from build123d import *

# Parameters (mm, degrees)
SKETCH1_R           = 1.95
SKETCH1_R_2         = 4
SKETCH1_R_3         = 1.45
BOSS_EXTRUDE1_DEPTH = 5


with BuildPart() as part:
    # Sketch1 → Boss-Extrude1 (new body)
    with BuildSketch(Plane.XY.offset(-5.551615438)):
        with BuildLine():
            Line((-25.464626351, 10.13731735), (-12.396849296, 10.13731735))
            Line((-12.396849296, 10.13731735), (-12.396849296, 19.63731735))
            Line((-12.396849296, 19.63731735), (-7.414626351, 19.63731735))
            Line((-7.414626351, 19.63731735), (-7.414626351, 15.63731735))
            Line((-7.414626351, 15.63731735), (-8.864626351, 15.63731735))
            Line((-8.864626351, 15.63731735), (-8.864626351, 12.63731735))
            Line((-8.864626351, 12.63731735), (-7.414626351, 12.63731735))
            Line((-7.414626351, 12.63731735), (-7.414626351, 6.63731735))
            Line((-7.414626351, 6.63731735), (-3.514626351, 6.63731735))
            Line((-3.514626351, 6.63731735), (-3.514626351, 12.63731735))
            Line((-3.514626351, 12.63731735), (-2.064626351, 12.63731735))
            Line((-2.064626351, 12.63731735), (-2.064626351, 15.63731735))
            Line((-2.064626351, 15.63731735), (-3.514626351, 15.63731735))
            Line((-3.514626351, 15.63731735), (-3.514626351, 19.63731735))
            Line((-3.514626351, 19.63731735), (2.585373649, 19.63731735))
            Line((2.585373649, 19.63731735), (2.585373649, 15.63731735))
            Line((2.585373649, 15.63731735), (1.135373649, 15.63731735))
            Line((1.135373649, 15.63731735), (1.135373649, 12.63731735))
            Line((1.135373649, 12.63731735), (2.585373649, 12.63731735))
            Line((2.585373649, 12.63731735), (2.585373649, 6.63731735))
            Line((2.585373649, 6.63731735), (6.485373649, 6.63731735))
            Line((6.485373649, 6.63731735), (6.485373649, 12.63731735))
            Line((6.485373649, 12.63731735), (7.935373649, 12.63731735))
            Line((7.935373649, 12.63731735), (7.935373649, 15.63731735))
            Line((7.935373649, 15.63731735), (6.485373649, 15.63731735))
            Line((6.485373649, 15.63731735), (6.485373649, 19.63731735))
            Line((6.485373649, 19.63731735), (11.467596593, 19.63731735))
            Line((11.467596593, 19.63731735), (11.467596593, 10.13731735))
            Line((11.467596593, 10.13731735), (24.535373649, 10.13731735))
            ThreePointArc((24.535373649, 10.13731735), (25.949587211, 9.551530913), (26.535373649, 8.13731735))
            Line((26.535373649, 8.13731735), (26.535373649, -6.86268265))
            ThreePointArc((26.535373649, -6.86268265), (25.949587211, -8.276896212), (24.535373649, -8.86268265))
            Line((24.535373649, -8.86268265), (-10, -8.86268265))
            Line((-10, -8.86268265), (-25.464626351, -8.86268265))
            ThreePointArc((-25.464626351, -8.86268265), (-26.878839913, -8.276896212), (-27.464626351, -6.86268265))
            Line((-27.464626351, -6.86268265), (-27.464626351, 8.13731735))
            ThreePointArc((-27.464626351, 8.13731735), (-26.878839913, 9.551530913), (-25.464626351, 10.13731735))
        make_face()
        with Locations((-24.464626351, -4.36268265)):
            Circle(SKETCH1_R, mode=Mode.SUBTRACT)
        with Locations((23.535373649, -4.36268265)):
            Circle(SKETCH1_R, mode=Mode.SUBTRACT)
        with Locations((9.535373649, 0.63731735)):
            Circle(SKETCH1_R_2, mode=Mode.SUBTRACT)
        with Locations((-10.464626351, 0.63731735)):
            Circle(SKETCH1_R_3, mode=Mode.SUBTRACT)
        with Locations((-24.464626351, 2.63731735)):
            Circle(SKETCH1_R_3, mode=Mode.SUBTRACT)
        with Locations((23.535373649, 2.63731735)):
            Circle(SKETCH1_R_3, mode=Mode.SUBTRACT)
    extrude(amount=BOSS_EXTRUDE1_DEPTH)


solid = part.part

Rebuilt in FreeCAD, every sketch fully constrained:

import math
import FreeCAD as App
import Part
import Sketcher

doc = App.newDocument("Part")
body = doc.addObject("PartDesign::Body", "Body")

# Sketch on XY plane
sketch1 = body.newObject("Sketcher::SketchObject", "Sketch")
sketch1.AttachmentSupport = (doc.getObject("XY_Plane"), [""])
sketch1.MapMode = "FlatFace"
sketch1.AttachmentOffset = App.Placement(App.Vector(0, 0, -5.551615), App.Rotation())
sketch1.addGeometry([
    Part.LineSegment(App.Vector(-12.4, 10.1, 0), App.Vector(-25.5, 10.1, 0)),  # 0
    Part.ArcOfCircle(Part.Circle(App.Vector(-25.5, 8.1, 0), App.Vector(0, 0, 1), 2), math.radians(90), math.radians(180)),  # 1
    Part.LineSegment(App.Vector(-27.5, 8.1, 0), App.Vector(-27.5, -6.9, 0)),  # 2
    Part.ArcOfCircle(Part.Circle(App.Vector(-25.5, -6.9, 0), App.Vector(0, 0, 1), 2), math.radians(-180), math.radians(-90)),  # 3
    Part.LineSegment(App.Vector(-25.5, -8.9, 0), App.Vector(24.5, -8.9, 0)),  # 4
    Part.ArcOfCircle(Part.Circle(App.Vector(24.5, -6.9, 0), App.Vector(0, 0, 1), 2), math.radians(-90), math.radians(0)),  # 5
    Part.LineSegment(App.Vector(26.5, -6.9, 0), App.Vector(26.5, 8.1, 0)),  # 6
    Part.ArcOfCircle(Part.Circle(App.Vector(24.5, 8.1, 0), App.Vector(0, 0, 1), 2), math.radians(0), math.radians(90)),  # 7
    Part.LineSegment(App.Vector(24.5, 10.1, 0), App.Vector(11.5, 10.1, 0)),  # 8
    Part.LineSegment(App.Vector(11.5, 10.1, 0), App.Vector(11.5, 19.6, 0)),  # 9
    Part.LineSegment(App.Vector(11.5, 19.6, 0), App.Vector(6.5, 19.6, 0)),  # 10
    Part.LineSegment(App.Vector(6.5, 19.6, 0), App.Vector(6.5, 15.6, 0)),  # 11
    Part.LineSegment(App.Vector(6.5, 15.6, 0), App.Vector(7.9, 15.6, 0)),  # 12
    Part.LineSegment(App.Vector(7.9, 15.6, 0), App.Vector(7.9, 12.6, 0)),  # 13
    Part.LineSegment(App.Vector(7.9, 12.6, 0), App.Vector(6.5, 12.6, 0)),  # 14
    Part.LineSegment(App.Vector(6.5, 12.6, 0), App.Vector(6.5, 6.6, 0)),  # 15
    Part.LineSegment(App.Vector(6.5, 6.6, 0), App.Vector(2.6, 6.6, 0)),  # 16
    Part.LineSegment(App.Vector(2.6, 6.6, 0), App.Vector(2.6, 12.6, 0)),  # 17
    Part.LineSegment(App.Vector(2.6, 12.6, 0), App.Vector(1.1, 12.6, 0)),  # 18
    Part.LineSegment(App.Vector(1.1, 12.6, 0), App.Vector(1.1, 15.6, 0)),  # 19
    Part.LineSegment(App.Vector(1.1, 15.6, 0), App.Vector(2.6, 15.6, 0)),  # 20
    Part.LineSegment(App.Vector(2.6, 15.6, 0), App.Vector(2.6, 19.6, 0)),  # 21
    Part.LineSegment(App.Vector(2.6, 19.6, 0), App.Vector(-3.5, 19.6, 0)),  # 22
    Part.LineSegment(App.Vector(-3.5, 19.6, 0), App.Vector(-3.5, 15.6, 0)),  # 23
    Part.LineSegment(App.Vector(-3.5, 15.6, 0), App.Vector(-2.1, 15.6, 0)),  # 24
    Part.LineSegment(App.Vector(-2.1, 15.6, 0), App.Vector(-2.1, 12.6, 0)),  # 25
    Part.LineSegment(App.Vector(-2.1, 12.6, 0), App.Vector(-3.5, 12.6, 0)),  # 26
    Part.LineSegment(App.Vector(-3.5, 12.6, 0), App.Vector(-3.5, 6.6, 0)),  # 27
    Part.LineSegment(App.Vector(-3.5, 6.6, 0), App.Vector(-7.4, 6.6, 0)),  # 28
    Part.LineSegment(App.Vector(-7.4, 6.6, 0), App.Vector(-7.4, 12.6, 0)),  # 29
    Part.LineSegment(App.Vector(-7.4, 12.6, 0), App.Vector(-8.9, 12.6, 0)),  # 30
    Part.LineSegment(App.Vector(-8.9, 12.6, 0), App.Vector(-8.9, 15.6, 0)),  # 31
    Part.LineSegment(App.Vector(-8.9, 15.6, 0), App.Vector(-7.4, 15.6, 0)),  # 32
    Part.LineSegment(App.Vector(-7.4, 15.6, 0), App.Vector(-7.4, 19.6, 0)),  # 33
    Part.LineSegment(App.Vector(-7.4, 19.6, 0), App.Vector(-12.4, 19.6, 0)),  # 34
    Part.LineSegment(App.Vector(-12.4, 19.6, 0), App.Vector(-12.4, 10.1, 0)),  # 35
    Part.Circle(App.Vector(23.5, -4.4, 0), App.Vector(0, 0, 1), 1.9),  # 36
    Part.Circle(App.Vector(-24.5, -4.4, 0), App.Vector(0, 0, 1), 1.9),  # 37
    Part.Circle(App.Vector(9.5, 0.6, 0), App.Vector(0, 0, 1), 4),  # 38
    Part.Circle(App.Vector(23.5, 2.6, 0), App.Vector(0, 0, 1), 1.4),  # 39
    Part.Circle(App.Vector(-10.5, 0.6, 0), App.Vector(0, 0, 1), 1.4),  # 40
    Part.Circle(App.Vector(-24.5, 2.6, 0), App.Vector(0, 0, 1), 1.4),  # 41
], False)
sketch1.addConstraint([
    Sketcher.Constraint("Tangent", 0, 2, 1, 1),
    Sketcher.Constraint("Tangent", 1, 2, 2, 1),
    Sketcher.Constraint("Tangent", 2, 2, 3, 1),
    Sketcher.Constraint("Tangent", 3, 2, 4, 1),
    Sketcher.Constraint("Tangent", 4, 2, 5, 1),
    Sketcher.Constraint("Tangent", 5, 2, 6, 1),
    Sketcher.Constraint("Tangent", 6, 2, 7, 1),
    Sketcher.Constraint("Tangent", 7, 2, 8, 1),
    Sketcher.Constraint("Coincident", 8, 2, 9, 1),
    Sketcher.Constraint("Coincident", 9, 2, 10, 1),
    Sketcher.Constraint("Coincident", 10, 2, 11, 1),
    Sketcher.Constraint("Coincident", 11, 2, 12, 1),
    Sketcher.Constraint("Coincident", 12, 2, 13, 1),
    Sketcher.Constraint("Coincident", 13, 2, 14, 1),
    Sketcher.Constraint("Coincident", 14, 2, 15, 1),
    Sketcher.Constraint("Coincident", 15, 2, 16, 1),
    Sketcher.Constraint("Coincident", 16, 2, 17, 1),
    Sketcher.Constraint("Coincident", 17, 2, 18, 1),
    Sketcher.Constraint("Coincident", 18, 2, 19, 1),
    Sketcher.Constraint("Coincident", 19, 2, 20, 1),
    Sketcher.Constraint("Coincident", 20, 2, 21, 1),
    Sketcher.Constraint("Coincident", 21, 2, 22, 1),
    Sketcher.Constraint("Coincident", 22, 2, 23, 1),
    Sketcher.Constraint("Coincident", 23, 2, 24, 1),
    Sketcher.Constraint("Coincident", 24, 2, 25, 1),
    Sketcher.Constraint("Coincident", 25, 2, 26, 1),
    Sketcher.Constraint("Coincident", 26, 2, 27, 1),
    Sketcher.Constraint("Coincident", 27, 2, 28, 1),
    Sketcher.Constraint("Coincident", 28, 2, 29, 1),
    Sketcher.Constraint("Coincident", 29, 2, 30, 1),
    Sketcher.Constraint("Coincident", 30, 2, 31, 1),
    Sketcher.Constraint("Coincident", 31, 2, 32, 1),
    Sketcher.Constraint("Coincident", 32, 2, 33, 1),
    Sketcher.Constraint("Coincident", 33, 2, 34, 1),
    Sketcher.Constraint("Coincident", 34, 2, 35, 1),
    Sketcher.Constraint("Coincident", 35, 2, 0, 1),
    Sketcher.Constraint("Horizontal", 0),
    Sketcher.Constraint("Vertical", 2),
    Sketcher.Constraint("Horizontal", 4),
    Sketcher.Constraint("Vertical", 6),
    Sketcher.Constraint("Horizontal", 8),
    Sketcher.Constraint("Vertical", 9),
    Sketcher.Constraint("Horizontal", 10),
    Sketcher.Constraint("Vertical", 11),
    Sketcher.Constraint("Horizontal", 12),
    Sketcher.Constraint("Vertical", 13),
    Sketcher.Constraint("Horizontal", 14),
    Sketcher.Constraint("Vertical", 15),
    Sketcher.Constraint("Horizontal", 16),
    Sketcher.Constraint("Vertical", 17),
    Sketcher.Constraint("Horizontal", 18),
    Sketcher.Constraint("Vertical", 19),
    Sketcher.Constraint("Horizontal", 20),
    Sketcher.Constraint("Vertical", 21),
    Sketcher.Constraint("Horizontal", 22),
    Sketcher.Constraint("Vertical", 23),
    Sketcher.Constraint("Horizontal", 24),
    Sketcher.Constraint("Vertical", 25),
    Sketcher.Constraint("Horizontal", 26),
    Sketcher.Constraint("Vertical", 27),
    Sketcher.Constraint("Horizontal", 28),
    Sketcher.Constraint("Vertical", 29),
    Sketcher.Constraint("Horizontal", 30),
    Sketcher.Constraint("Vertical", 31),
    Sketcher.Constraint("Horizontal", 32),
    Sketcher.Constraint("Vertical", 33),
    Sketcher.Constraint("Horizontal", 34),
    Sketcher.Constraint("Vertical", 35),
    Sketcher.Constraint("Equal", 1, 3),
    Sketcher.Constraint("Equal", 3, 5),
    Sketcher.Constraint("Equal", 5, 7),
    Sketcher.Constraint("Equal", 36, 37),
    Sketcher.Constraint("Equal", 39, 40),
    Sketcher.Constraint("Equal", 40, 41),
    Sketcher.Constraint("Horizontal", 1, 3, 7, 3),
    Sketcher.Constraint("Horizontal", 36, 3, 37, 3),
    Sketcher.Constraint("Horizontal", 38, 3, 40, 3),
    Sketcher.Constraint("Horizontal", 39, 3, 41, 3),
    Sketcher.Constraint("Horizontal", 14, 2, 17, 2),
    Sketcher.Constraint("Horizontal", 12, 2, 19, 2),
    Sketcher.Constraint("Horizontal", 10, 2, 21, 2),
    Sketcher.Constraint("Horizontal", 20, 2, 23, 2),
    Sketcher.Constraint("Horizontal", 18, 2, 25, 2),
    Sketcher.Constraint("Horizontal", 16, 2, 27, 2),
    Sketcher.Constraint("Horizontal", 26, 2, 29, 2),
    Sketcher.Constraint("Horizontal", 24, 2, 31, 2),
    Sketcher.Constraint("Horizontal", 22, 2, 33, 2),
    Sketcher.Constraint("Vertical", 36, 3, 39, 3),
    Sketcher.Constraint("Vertical", 37, 3, 41, 3),
    Sketcher.Constraint("Vertical", 11, 2, 14, 2),
    Sketcher.Constraint("Vertical", 17, 2, 20, 2),
    Sketcher.Constraint("Vertical", 23, 2, 26, 2),
    Sketcher.Constraint("Vertical", 29, 2, 32, 2),
    Sketcher.Constraint("Equal", 0, 8),
    Sketcher.Constraint("Equal", 14, 18),
    Sketcher.Constraint("Equal", 20, 24),
    Sketcher.Constraint("Equal", 16, 28),
    Sketcher.Constraint("Equal", 26, 30),
    Sketcher.Constraint("Equal", 10, 34),
    Sketcher.Constraint("Diameter", 38, 8.0),
    Sketcher.Constraint("Radius", 1, 2.0),
    Sketcher.Constraint("Diameter", 36, 3.9),
    Sketcher.Constraint("Diameter", 39, 2.9),
    Sketcher.Constraint("DistanceX", 4, 1, 4, 2, 50.0),
    Sketcher.Constraint("DistanceY", 2, 2, 2, 1, 15.0),
    Sketcher.Constraint("DistanceY", 11, 2, 11, 1, 4.0),
    Sketcher.Constraint("DistanceY", 13, 2, 13, 1, 3.0),
    Sketcher.Constraint("DistanceY", 15, 2, 15, 1, 6.0),
    Sketcher.Constraint("DistanceX", 16, 2, 16, 1, 3.9),
    Sketcher.Constraint("DistanceX", 22, 2, 22, 1, 6.1),
    Sketcher.Constraint("DistanceY", 9, 1, 9, 2, 9.5),
    Sketcher.Constraint("DistanceX", 36, 3, 5, 3, 1.0),
    Sketcher.Constraint("DistanceX", 3, 3, 37, 3, 1.0),
    Sketcher.Constraint("DistanceX", 38, 3, 36, 3, 14.0),
    Sketcher.Constraint("DistanceY", 36, 3, 38, 3, 5.0),
    Sketcher.Constraint("DistanceY", 36, 3, 39, 3, 7.0),
    Sketcher.Constraint("DistanceX", 37, 3, 40, 3, 14.0),
    Sketcher.Constraint("DistanceY", 38, 3, 9, 2, 19.0),
    Sketcher.Constraint("DistanceX", 12, 1, 12, 2, 1.45),
    Sketcher.Constraint("DistanceX", 0, 2, 0, 1, 13.067777),
    Sketcher.Constraint("DistanceX", 34, 2, -1, 1, 12.396849),
    Sketcher.Constraint("DistanceY", -1, 1, 1, 3, 8.137317),
])
pad1 = body.newObject("PartDesign::Pad", "Pad")
pad1.Profile = sketch1
pad1.Length = 5

doc.recompute()
